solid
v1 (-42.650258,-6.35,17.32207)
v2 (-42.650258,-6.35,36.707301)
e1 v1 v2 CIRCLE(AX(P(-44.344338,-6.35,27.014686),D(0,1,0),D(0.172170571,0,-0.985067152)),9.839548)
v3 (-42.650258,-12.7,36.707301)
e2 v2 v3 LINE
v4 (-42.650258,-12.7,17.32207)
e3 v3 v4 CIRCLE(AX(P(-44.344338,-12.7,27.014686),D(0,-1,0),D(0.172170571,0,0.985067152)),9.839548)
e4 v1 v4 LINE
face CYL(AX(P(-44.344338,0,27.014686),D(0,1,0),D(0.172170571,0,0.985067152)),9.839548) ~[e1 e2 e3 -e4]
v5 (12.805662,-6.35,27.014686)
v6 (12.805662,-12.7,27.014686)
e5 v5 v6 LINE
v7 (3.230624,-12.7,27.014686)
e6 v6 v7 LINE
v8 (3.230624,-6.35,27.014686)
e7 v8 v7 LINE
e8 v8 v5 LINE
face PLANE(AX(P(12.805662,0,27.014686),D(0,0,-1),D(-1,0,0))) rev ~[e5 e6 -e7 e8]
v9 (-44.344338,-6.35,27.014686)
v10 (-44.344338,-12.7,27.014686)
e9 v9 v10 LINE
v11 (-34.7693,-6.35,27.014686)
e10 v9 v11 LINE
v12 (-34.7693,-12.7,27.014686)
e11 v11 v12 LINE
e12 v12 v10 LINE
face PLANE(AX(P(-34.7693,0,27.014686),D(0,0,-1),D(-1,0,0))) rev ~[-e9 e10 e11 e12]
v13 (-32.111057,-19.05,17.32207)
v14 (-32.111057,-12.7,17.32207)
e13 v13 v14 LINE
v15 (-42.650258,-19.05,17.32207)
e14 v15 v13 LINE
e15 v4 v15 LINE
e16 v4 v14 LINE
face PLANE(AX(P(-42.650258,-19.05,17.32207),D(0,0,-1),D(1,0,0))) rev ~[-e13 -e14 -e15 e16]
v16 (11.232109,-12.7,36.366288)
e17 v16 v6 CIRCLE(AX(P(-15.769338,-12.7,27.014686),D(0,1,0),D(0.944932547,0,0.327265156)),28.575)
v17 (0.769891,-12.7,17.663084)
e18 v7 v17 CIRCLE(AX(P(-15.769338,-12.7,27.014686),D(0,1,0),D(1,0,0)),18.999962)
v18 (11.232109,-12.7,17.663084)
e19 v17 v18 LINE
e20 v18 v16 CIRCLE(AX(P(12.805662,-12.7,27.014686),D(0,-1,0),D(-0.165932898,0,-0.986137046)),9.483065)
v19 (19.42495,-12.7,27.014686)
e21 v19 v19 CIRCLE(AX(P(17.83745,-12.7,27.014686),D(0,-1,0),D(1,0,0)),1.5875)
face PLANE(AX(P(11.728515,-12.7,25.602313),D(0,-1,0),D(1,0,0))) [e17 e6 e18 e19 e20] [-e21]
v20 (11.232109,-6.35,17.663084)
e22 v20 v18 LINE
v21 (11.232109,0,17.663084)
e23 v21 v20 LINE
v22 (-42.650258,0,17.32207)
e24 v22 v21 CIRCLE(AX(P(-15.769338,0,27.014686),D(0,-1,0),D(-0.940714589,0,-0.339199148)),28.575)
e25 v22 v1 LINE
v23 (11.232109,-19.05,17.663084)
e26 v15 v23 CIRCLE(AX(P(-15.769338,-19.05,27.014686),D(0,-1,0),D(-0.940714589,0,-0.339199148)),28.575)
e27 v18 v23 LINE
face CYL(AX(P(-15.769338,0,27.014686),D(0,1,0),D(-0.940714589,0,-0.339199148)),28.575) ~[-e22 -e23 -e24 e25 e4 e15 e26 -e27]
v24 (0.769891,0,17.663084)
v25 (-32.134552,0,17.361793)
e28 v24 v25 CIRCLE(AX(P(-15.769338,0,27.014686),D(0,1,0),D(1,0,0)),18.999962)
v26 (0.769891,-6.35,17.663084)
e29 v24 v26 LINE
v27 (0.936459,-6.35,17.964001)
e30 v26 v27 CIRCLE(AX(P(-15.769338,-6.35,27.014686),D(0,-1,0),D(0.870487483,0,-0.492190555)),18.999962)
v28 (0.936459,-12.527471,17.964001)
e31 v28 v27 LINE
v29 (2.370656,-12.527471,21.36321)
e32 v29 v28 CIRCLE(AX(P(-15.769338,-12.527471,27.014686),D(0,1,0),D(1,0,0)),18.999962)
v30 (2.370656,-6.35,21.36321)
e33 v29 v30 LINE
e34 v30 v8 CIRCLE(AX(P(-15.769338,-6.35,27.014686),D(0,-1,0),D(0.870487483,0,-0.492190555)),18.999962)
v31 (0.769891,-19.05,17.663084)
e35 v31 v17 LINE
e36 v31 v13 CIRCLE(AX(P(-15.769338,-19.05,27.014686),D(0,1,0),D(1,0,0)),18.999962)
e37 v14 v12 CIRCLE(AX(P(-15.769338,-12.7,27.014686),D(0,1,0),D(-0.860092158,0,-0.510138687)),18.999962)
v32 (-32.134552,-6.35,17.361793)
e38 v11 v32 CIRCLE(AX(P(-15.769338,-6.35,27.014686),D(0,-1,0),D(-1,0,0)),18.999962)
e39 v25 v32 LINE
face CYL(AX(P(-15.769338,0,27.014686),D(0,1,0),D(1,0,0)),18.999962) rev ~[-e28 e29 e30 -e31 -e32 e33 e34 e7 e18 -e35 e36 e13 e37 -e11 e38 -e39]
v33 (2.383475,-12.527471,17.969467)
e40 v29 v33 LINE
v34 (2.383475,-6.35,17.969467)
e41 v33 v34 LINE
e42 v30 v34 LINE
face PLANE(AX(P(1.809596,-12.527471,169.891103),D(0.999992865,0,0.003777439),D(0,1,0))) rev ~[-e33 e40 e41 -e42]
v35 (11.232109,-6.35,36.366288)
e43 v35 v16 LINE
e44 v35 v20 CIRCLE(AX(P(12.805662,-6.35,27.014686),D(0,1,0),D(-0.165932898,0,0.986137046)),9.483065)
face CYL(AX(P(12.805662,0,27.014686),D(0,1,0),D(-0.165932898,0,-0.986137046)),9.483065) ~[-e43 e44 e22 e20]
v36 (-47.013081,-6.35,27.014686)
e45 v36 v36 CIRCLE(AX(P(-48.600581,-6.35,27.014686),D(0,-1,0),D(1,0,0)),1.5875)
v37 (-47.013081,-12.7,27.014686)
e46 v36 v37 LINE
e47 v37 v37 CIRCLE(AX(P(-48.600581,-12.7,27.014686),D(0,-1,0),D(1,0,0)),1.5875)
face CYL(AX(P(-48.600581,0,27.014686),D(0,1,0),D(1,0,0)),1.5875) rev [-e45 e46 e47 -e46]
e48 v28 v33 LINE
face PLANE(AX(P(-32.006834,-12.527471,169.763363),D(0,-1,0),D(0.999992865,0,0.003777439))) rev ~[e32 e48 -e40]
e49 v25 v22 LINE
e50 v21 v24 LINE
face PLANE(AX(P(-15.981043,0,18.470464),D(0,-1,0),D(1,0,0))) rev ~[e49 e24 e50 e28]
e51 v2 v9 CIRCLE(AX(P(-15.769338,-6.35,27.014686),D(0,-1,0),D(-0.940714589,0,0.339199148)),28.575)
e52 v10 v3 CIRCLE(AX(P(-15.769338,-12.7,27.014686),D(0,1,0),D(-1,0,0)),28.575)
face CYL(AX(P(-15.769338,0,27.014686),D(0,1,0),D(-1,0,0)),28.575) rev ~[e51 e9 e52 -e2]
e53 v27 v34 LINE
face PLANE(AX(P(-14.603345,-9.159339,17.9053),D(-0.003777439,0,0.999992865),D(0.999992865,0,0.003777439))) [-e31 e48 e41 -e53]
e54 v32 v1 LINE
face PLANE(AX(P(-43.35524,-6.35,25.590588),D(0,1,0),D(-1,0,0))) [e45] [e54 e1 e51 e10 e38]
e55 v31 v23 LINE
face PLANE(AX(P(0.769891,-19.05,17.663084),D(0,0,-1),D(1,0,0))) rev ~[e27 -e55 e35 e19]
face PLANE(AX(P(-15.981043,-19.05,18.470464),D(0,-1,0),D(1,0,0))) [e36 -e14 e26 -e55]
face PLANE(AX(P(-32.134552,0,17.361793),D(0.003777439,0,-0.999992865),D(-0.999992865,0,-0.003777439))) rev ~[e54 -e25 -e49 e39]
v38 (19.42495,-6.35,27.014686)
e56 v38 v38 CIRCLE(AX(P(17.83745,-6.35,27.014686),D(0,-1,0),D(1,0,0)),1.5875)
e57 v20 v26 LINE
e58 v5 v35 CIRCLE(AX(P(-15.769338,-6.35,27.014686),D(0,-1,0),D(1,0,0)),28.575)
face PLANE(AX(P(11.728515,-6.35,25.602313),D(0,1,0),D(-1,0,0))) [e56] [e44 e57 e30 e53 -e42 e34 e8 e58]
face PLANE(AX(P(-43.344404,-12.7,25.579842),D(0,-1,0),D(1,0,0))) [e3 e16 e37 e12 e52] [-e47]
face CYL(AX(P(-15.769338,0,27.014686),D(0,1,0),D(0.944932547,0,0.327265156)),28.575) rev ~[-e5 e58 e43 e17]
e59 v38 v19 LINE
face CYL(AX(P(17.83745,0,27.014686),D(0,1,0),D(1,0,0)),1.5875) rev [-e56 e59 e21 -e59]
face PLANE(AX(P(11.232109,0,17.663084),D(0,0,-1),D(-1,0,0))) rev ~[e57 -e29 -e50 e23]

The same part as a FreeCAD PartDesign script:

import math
import FreeCAD as App
import Part
import Sketcher

V = App.Vector
Q = App.Units.Quantity


def add_polygon(sketch, points):
    """Adds a closed chain of lines whose ends are joined by coincident constraints."""
    first, n = sketch.GeometryCount, len(points)
    for a, b in zip(points, points[1:] + points[:1]):
        sketch.addGeometry(Part.LineSegment(App.Vector(*a, 0), App.Vector(*b, 0)), False)
    for i in range(n):
        sketch.addConstraint(Sketcher.Constraint("Coincident", first + i, 2, first + (i + 1) % n, 1))

doc = App.newDocument("Part")
body = doc.addObject("PartDesign::Body", "Body")

# Sketch on XZ plane
sketch1 = body.newObject("Sketcher::SketchObject", "Sketch")
sketch1.AttachmentSupport = (doc.getObject("XZ_Plane"), [""])
sketch1.MapMode = "FlatFace"
sketch1.addGeometry(Part.ArcOfCircle(Part.Circle(V(-15.8, 27, 0), V(0, 0, 1), 19), math.radians(180), math.radians(360)), False)
sketch1.addGeometry(Part.LineSegment(V(-34.8, 27, 0), V(-44.3, 27, 0)), False)
sketch1.addGeometry(Part.ArcOfCircle(Part.Circle(V(-15.8, 27, 0), V(0, 0, 1), 28.6), math.radians(160.17), math.radians(180)), False)
sketch1.addGeometry(Part.ArcOfCircle(Part.Circle(V(-44.3, 27, 0), V(0, 0, 1), 9.8), math.radians(80), math.radians(280)), False)
sketch1.addGeometry(Part.ArcOfCircle(Part.Circle(V(-15.8, 27, 0), V(0, 0, 1), 28.6), math.radians(-160), math.radians(-19)), False)
sketch1.addGeometry(Part.ArcOfCircle(Part.Circle(V(12.8, 27, 0), V(0, 0, 1), 9.5), math.radians(-100), math.radians(100)), False)
sketch1.addGeometry(Part.ArcOfCircle(Part.Circle(V(-15.8, 27, 0), V(0, 0, 1), 28.6), math.radians(0), math.radians(19.1)), False)
sketch1.addGeometry(Part.LineSegment(V(12.8, 27, 0), V(3.2, 27, 0)), False)
sketch1.addGeometry(Part.Circle(V(-48.6, 27, 0), V(0, 0, 1), 1.6), False)
sketch1.addGeometry(Part.Circle(V(17.8, 27, 0), V(0, 0, 1), 1.6), False)
sketch1.addConstraint(Sketcher.Constraint("Coincident", 0, 1, 1, 1))
sketch1.addConstraint(Sketcher.Constraint("Coincident", 1, 2, 2, 2))
sketch1.addConstraint(Sketcher.Constraint("Coincident", 2, 1, 3, 1))
sketch1.addConstraint(Sketcher.Constraint("Coincident", 3, 2, 4, 1))
sketch1.addConstraint(Sketcher.Constraint("Coincident", 4, 2, 5, 1))
sketch1.addConstraint(Sketcher.Constraint("Coincident", 5, 2, 6, 2))
sketch1.addConstraint(Sketcher.Constraint("Coincident", 6, 1, 7, 1))
sketch1.addConstraint(Sketcher.Constraint("Coincident", 7, 2, 0, 2))
sketch1.addConstraint(Sketcher.Constraint("Horizontal", 1))
sketch1.addConstraint(Sketcher.Constraint("Horizontal", 7))
sketch1.addConstraint(Sketcher.Constraint("Coincident", 2, 3, 0, 3))
sketch1.addConstraint(Sketcher.Constraint("Coincident", 4, 3, 0, 3))
sketch1.addConstraint(Sketcher.Constraint("Coincident", 6, 3, 0, 3))
sketch1.addConstraint(Sketcher.Constraint("Coincident", 1, 2, 3, 3))
sketch1.addConstraint(Sketcher.Constraint("Coincident", 6, 1, 5, 3))
sketch1.addConstraint(Sketcher.Constraint("Equal", 2, 4))
sketch1.addConstraint(Sketcher.Constraint("Equal", 4, 6))
sketch1.addConstraint(Sketcher.Constraint("Equal", 8, 9))
sketch1.addConstraint(Sketcher.Constraint("Horizontal", 2, 3, 3, 3))
sketch1.addConstraint(Sketcher.Constraint("Horizontal", 4, 3, 5, 3))
sketch1.addConstraint(Sketcher.Constraint("Horizontal", 6, 3, 8, 3))
sketch1.addConstraint(Sketcher.Constraint("Horizontal", 8, 3, 9, 3))
sketch1.addConstraint(Sketcher.Constraint("Diameter", 8, Q("0.125 in")))
sketch1.addConstraint(Sketcher.Constraint("Radius", 2, Q("1.125 in")))
sketch1.addConstraint(Sketcher.Constraint("Radius", 0, Q("18.999962 mm")))
sketch1.addConstraint(Sketcher.Constraint("Radius", 3, Q("9.839548 mm")))
sketch1.addConstraint(Sketcher.Constraint("Radius", 5, Q("9.483065 mm")))
sketch1.addConstraint(Sketcher.Constraint("DistanceX", 0, 1, -1, 1, Q("34.7693 mm")))
sketch1.addConstraint(Sketcher.Constraint("DistanceY", -1, 1, 2, 1, Q("36.707301 mm")))
sketch1.addConstraint(Sketcher.Constraint("DistanceX", 8, 3, -1, 1, Q("48.600581 mm")))
sketch1.addConstraint(Sketcher.Constraint("DistanceX", -1, 1, 9, 3, Q("17.83745 mm")))
pad1 = body.newObject("PartDesign::Pad", "Pad")
pad1.Profile = sketch1
pad1.Length = Q("0.75 in")

# Sketch on XZ plane
sketch2 = body.newObject("Sketcher::SketchObject", "Sketch001")
sketch2.AttachmentSupport = (doc.getObject("XZ_Plane"), [""])
sketch2.MapMode = "FlatFace"
sketch2.AttachmentOffset = App.Placement(V(0, 0, 0.75 * 25.4), App.Rotation())
sketch2.addGeometry(Part.ArcOfCircle(Part.Circle(V(-44.3, 27, 0), V(0, 0, 1), 9.8), math.radians(80), math.radians(280)), False)
sketch2.addGeometry(Part.LineSegment(V(-42.7, 17.3, 0), V(-32.1, 17.3, 0)), False)
sketch2.addGeometry(Part.ArcOfCircle(Part.Circle(V(-15.8, 27, 0), V(0, 0, 1), 19), math.radians(180), math.radians(211)), False)
sketch2.addGeometry(Part.LineSegment(V(-34.8, 27, 0), V(-44.3, 27, 0)), False)
sketch2.addGeometry(Part.ArcOfCircle(Part.Circle(V(-15.8, 27, 0), V(0, 0, 1), 28.6), math.radians(160.17), math.radians(180)), False)
sketch2.addGeometry(Part.Circle(V(-48.6, 27, 0), V(0, 0, 1), 1.6), False)
sketch2.addGeometry(Part.LineSegment(V(0.8, 17.7, 0), V(11.2, 17.7, 0)), False)
sketch2.addGeometry(Part.ArcOfCircle(Part.Circle(V(12.8, 27, 0), V(0, 0, 1), 9.5), math.radians(-100), math.radians(100)), False)
sketch2.addGeometry(Part.ArcOfCircle(Part.Circle(V(-15.8, 27, 0), V(0, 0, 1), 28.6), math.radians(0), math.radians(19.1)), False)
sketch2.addGeometry(Part.LineSegment(V(12.8, 27, 0), V(3.2, 27, 0)), False)
sketch2.addGeometry(Part.ArcOfCircle(Part.Circle(V(-15.8, 27, 0), V(0, 0, 1), 19), math.radians(-29), math.radians(0)), False)
sketch2.addGeometry(Part.Circle(V(17.8, 27, 0), V(0, 0, 1), 1.6), False)
sketch2.addConstraint(Sketcher.Constraint("Coincident", 0, 2, 1, 1))
sketch2.addConstraint(Sketcher.Constraint("Coincident", 1, 2, 2, 2))
sketch2.addConstraint(Sketcher.Constraint("Coincident", 2, 1, 3, 1))
sketch2.addConstraint(Sketcher.Constraint("Coincident", 3, 2, 4, 2))
sketch2.addConstraint(Sketcher.Constraint("Coincident", 4, 1, 0, 1))
sketch2.addConstraint(Sketcher.Constraint("Coincident", 6, 2, 7, 1))
sketch2.addConstraint(Sketcher.Constraint("Coincident", 7, 2, 8, 2))
sketch2.addConstraint(Sketcher.Constraint("Coincident", 8, 1, 9, 1))
sketch2.addConstraint(Sketcher.Constraint("Coincident", 9, 2, 10, 2))
sketch2.addConstraint(Sketcher.Constraint("Coincident", 10, 1, 6, 1))
sketch2.addConstraint(Sketcher.Constraint("Horizontal", 1))
sketch2.addConstraint(Sketcher.Constraint("Horizontal", 3))
sketch2.addConstraint(Sketcher.Constraint("Horizontal", 6))
sketch2.addConstraint(Sketcher.Constraint("Horizontal", 9))
sketch2.addConstraint(Sketcher.Constraint("Coincident", 4, 3, 2, 3))
sketch2.addConstraint(Sketcher.Constraint("Coincident", 8, 3, 2, 3))
sketch2.addConstraint(Sketcher.Constraint("Coincident", 10, 3, 2, 3))
sketch2.addConstraint(Sketcher.Constraint("Coincident", 3, 2, 0, 3))
sketch2.addConstraint(Sketcher.Constraint("Coincident", 8, 1, 7, 3))
sketch2.addConstraint(Sketcher.Constraint("Equal", 4, 8))
sketch2.addConstraint(Sketcher.Constraint("Equal", 2, 10))
sketch2.addConstraint(Sketcher.Constraint("Equal", 5, 11))
sketch2.addConstraint(Sketcher.Constraint("Horizontal", 0, 3, 2, 3))
sketch2.addConstraint(Sketcher.Constraint("Horizontal", 4, 3, 5, 3))
sketch2.addConstraint(Sketcher.Constraint("Horizontal", 5, 3, 7, 3))
sketch2.addConstraint(Sketcher.Constraint("Horizontal", 10, 3, 11, 3))
sketch2.addConstraint(Sketcher.Constraint("Vertical", 0, 2, 4, 1))
sketch2.addConstraint(Sketcher.Constraint("Vertical", 6, 2, 7, 2))
sketch2.addConstraint(Sketcher.Constraint("Diameter", 5, Q("0.125 in")))
sketch2.addConstraint(Sketcher.Constraint("Radius", 4, Q("1.125 in")))
sketch2.addConstraint(Sketcher.Constraint("Radius", 0, Q("9.839548 mm")))
sketch2.addConstraint(Sketcher.Constraint("Radius", 2, Q("18.999962 mm")))
sketch2.addConstraint(Sketcher.Constraint("Radius", 7, Q("9.483065 mm")))
sketch2.addConstraint(Sketcher.Constraint("DistanceX", 2, 1, -1, 1, Q("34.7693 mm")))
sketch2.addConstraint(Sketcher.Constraint("DistanceY", -1, 1, 4, 1, Q("36.707301 mm")))
sketch2.addConstraint(Sketcher.Constraint("DistanceX", 5, 3, -1, 1, Q("48.600581 mm")))
sketch2.addConstraint(Sketcher.Constraint("DistanceX", -1, 1, 11, 3, Q("17.83745 mm")))
pocket1 = body.newObject("PartDesign::Pocket", "Pocket")
pocket1.Profile = sketch2
pocket1.Length = Q("0.25 in")

# Sketch on XZ plane
sketch3 = body.newObject("Sketcher::SketchObject", "Sketch002")
sketch3.AttachmentSupport = (doc.getObject("XZ_Plane"), [""])
sketch3.MapMode = "FlatFace"
sketch3.addGeometry(Part.ArcOfCircle(Part.Circle(V(12.8, 27, 0), V(0, 0, 1), 9.5), math.radians(-100), math.radians(100)), False)
sketch3.addGeometry(Part.LineSegment(V(11.2, 17.7, 0), V(0.8, 17.7, 0)), False)
sketch3.addGeometry(Part.ArcOfCircle(Part.Circle(V(-15.8, 27, 0), V(0, 0, 1), 19), math.radians(-29), math.radians(0)), False)
sketch3.addGeometry(Part.LineSegment(V(3.2, 27, 0), V(12.8, 27, 0)), False)
sketch3.addGeometry(Part.ArcOfCircle(Part.Circle(V(-15.8, 27, 0), V(0, 0, 1), 28.6), math.radians(0), math.radians(19.1)), False)
sketch3.addGeometry(Part.Circle(V(17.8, 27, 0), V(0, 0, 1), 1.6), False)
sketch3.addGeometry(Part.LineSegment(V(-32.1, 17.4, 0), V(-42.7, 17.3, 0)), False)
sketch3.addGeometry(Part.ArcOfCircle(Part.Circle(V(-44.3, 27, 0), V(0, 0, 1), 9.8), math.radians(80), math.radians(280)), False)
sketch3.addGeometry(Part.ArcOfCircle(Part.Circle(V(-15.8, 27, 0), V(0, 0, 1), 28.6), math.radians(160.17), math.radians(180)), False)
sketch3.addGeometry(Part.LineSegment(V(-44.3, 27, 0), V(-34.8, 27, 0)), False)
sketch3.addGeometry(Part.ArcOfCircle(Part.Circle(V(-15.8, 27, 0), V(0, 0, 1), 19), math.radians(180), math.radians(211)), False)
sketch3.addGeometry(Part.Circle(V(-48.6, 27, 0), V(0, 0, 1), 1.6), False)
sketch3.addConstraint(Sketcher.Constraint("Coincident", 0, 1, 1, 1))
sketch3.addConstraint(Sketcher.Constraint("Coincident", 1, 2, 2, 1))
sketch3.addConstraint(Sketcher.Constraint("Coincident", 2, 2, 3, 1))
sketch3.addConstraint(Sketcher.Constraint("Coincident", 3, 2, 4, 1))
sketch3.addConstraint(Sketcher.Constraint("Coincident", 4, 2, 0, 2))
sketch3.addConstraint(Sketcher.Constraint("Coincident", 6, 2, 7, 2))
sketch3.addConstraint(Sketcher.Constraint("Coincident", 7, 1, 8, 1))
sketch3.addConstraint(Sketcher.Constraint("Coincident", 8, 2, 9, 1))
sketch3.addConstraint(Sketcher.Constraint("Coincident", 9, 2, 10, 1))
sketch3.addConstraint(Sketcher.Constraint("Coincident", 10, 2, 6, 1))
sketch3.addConstraint(Sketcher.Constraint("Horizontal", 1))
sketch3.addConstraint(Sketcher.Constraint("Horizontal", 3))
sketch3.addConstraint(Sketcher.Constraint("Horizontal", 9))
sketch3.addConstraint(Sketcher.Constraint("Coincident", 4, 3, 2, 3))
sketch3.addConstraint(Sketcher.Constraint("Coincident", 8, 3, 2, 3))
sketch3.addConstraint(Sketcher.Constraint("Coincident", 10, 3, 2, 3))
sketch3.addConstraint(Sketcher.Constraint("Coincident", 3, 2, 0, 3))
sketch3.addConstraint(Sketcher.Constraint("Coincident", 8, 2, 7, 3))
sketch3.addConstraint(Sketcher.Constraint("Equal", 4, 8))
sketch3.addConstraint(Sketcher.Constraint("Equal", 2, 10))
sketch3.addConstraint(Sketcher.Constraint("Equal", 5, 11))
sketch3.addConstraint(Sketcher.Constraint("Horizontal", 0, 3, 2, 3))
sketch3.addConstraint(Sketcher.Constraint("Horizontal", 4, 3, 5, 3))
sketch3.addConstraint(Sketcher.Constraint("Horizontal", 5, 3, 7, 3))
sketch3.addConstraint(Sketcher.Constraint("Horizontal", 10, 3, 11, 3))
sketch3.addConstraint(Sketcher.Constraint("Vertical", 0, 1, 4, 2))
sketch3.addConstraint(Sketcher.Constraint("Vertical", 6, 2, 7, 1))
sketch3.addConstraint(Sketcher.Constraint("Diameter", 5, Q("0.125 in")))
sketch3.addConstraint(Sketcher.Constraint("Radius", 4, Q("1.125 in")))
sketch3.addConstraint(Sketcher.Constraint("Radius", 2, Q("18.999962 mm")))
sketch3.addConstraint(Sketcher.Constraint("Radius", 7, Q("9.839548 mm")))
sketch3.addConstraint(Sketcher.Constraint("Radius", 0, Q("9.483065 mm")))
sketch3.addConstraint(Sketcher.Constraint("DistanceY", -1, 1, 7, 1, Q("36.707301 mm")))
sketch3.addConstraint(Sketcher.Constraint("DistanceX", 9, 2, -1, 1, Q("34.7693 mm")))
sketch3.addConstraint(Sketcher.Constraint("Distance", 6, Q("10.515781 mm")))
sketch3.addConstraint(Sketcher.Constraint("DistanceX", -1, 1, 5, 3, Q("17.83745 mm")))
sketch3.addConstraint(Sketcher.Constraint("DistanceX", 11, 3, -1, 1, Q("48.600581 mm")))
pocket2 = body.newObject("PartDesign::Pocket", "Pocket001")
pocket2.Profile = sketch3
pocket2.Length = Q("0.25 in")
pocket2.Reversed = True

# Sketch on an angled plane
sketch4 = body.newObject("Sketcher::SketchObject", "Sketch003")
sketch4.Placement = App.Placement(V(-0.641723, 0, 169.881843), App.Rotation(V(0.999992865, 0, 0.003777439), V(0, 0.999999999, 0), V(-0.003777439, 0, 0.999992865), "ZXY"))
add_polygon(sketch4, [(2, -6), (-32, -6), (-31, -13), (2, -13)])  # lines 0-3
sketch4.addConstraint(Sketcher.Constraint("Horizontal", 0))
sketch4.addConstraint(Sketcher.Constraint("Horizontal", 2))
sketch4.addConstraint(Sketcher.Constraint("Vertical", 3))
sketch4.addConstraint(Sketcher.Constraint("DistanceX", 2, 1, 2, 2, Q("33.816672 mm")))
sketch4.addConstraint(Sketcher.Constraint("Distance", 1, Q("6.717949 mm")))
sketch4.addConstraint(Sketcher.Constraint("DistanceX", 0, 2, 0, 1, Q("34.124057 mm")))
sketch4.addConstraint(Sketcher.Constraint("DistanceX", 0, 2, -1, 1, Q("31.67272 mm")))
sketch4.addConstraint(Sketcher.Constraint("DistanceY", 0, 2, -1, 1, Q("5.816559 mm")))
pocket3 = body.newObject("PartDesign::Pocket", "Pocket002")
pocket3.Profile = sketch4
pocket3.Length = 151.92272

doc.recompute()
